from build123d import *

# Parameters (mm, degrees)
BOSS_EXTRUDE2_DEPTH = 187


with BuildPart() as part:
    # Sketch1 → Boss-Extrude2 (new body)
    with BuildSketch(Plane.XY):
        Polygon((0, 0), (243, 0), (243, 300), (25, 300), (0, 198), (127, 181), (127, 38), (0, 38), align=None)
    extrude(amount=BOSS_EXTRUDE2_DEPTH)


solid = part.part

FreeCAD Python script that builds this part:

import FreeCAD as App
import Part
import Sketcher

V = App.Vector
Q = App.Units.Quantity

doc = App.newDocument("Part")
body = doc.addObject("PartDesign::Body", "Body")

# Sketch on XY plane
sketch1 = body.newObject("Sketcher::SketchObject", "Sketch")
sketch1.AttachmentSupport = (doc.getObject("XY_Plane"), [""])
sketch1.MapMode = "FlatFace"
sketch1.addGeometry([
    Part.LineSegment(V(0, 0, 0), V(243, 0, 0)),  # 0
    Part.LineSegment(V(243, 0, 0), V(243, 300, 0)),  # 1
    Part.LineSegment(V(243, 300, 0), V(25, 300, 0)),  # 2
    Part.LineSegment(V(25, 300, 0), V(0, 198, 0)),  # 3
    Part.LineSegment(V(0, 198, 0), V(127, 181, 0)),  # 4
    Part.LineSegment(V(127, 181, 0), V(127, 38, 0)),  # 5
    Part.LineSegment(V(127, 38, 0), V(0, 38, 0)),  # 6
    Part.LineSegment(V(0, 38, 0), V(0, 0, 0)),  # 7
], False)
sketch1.addConstraint([
    Sketcher.Constraint("Coincident", 0, 2, 1, 1),
    Sketcher.Constraint("Coincident", 1, 2, 2, 1),
    Sketcher.Constraint("Coincident", 2, 2, 3, 1),
    Sketcher.Constraint("Coincident", 3, 2, 4, 1),
    Sketcher.Constraint("Coincident", 4, 2, 5, 1),
    Sketcher.Constraint("Coincident", 5, 2, 6, 1),
    Sketcher.Constraint("Coincident", 6, 2, 7, 1),
    Sketcher.Constraint("Coincident", 7, 2, 0, 1),
    Sketcher.Constraint("Horizontal", 0),
    Sketcher.Constraint("Vertical", 1),
    Sketcher.Constraint("Horizontal", 2),
    Sketcher.Constraint("Vertical", 5),
    Sketcher.Constraint("Horizontal", 6),
    Sketcher.Constraint("Vertical", 7),
    Sketcher.Constraint("Coincident", 7, 2, -1, 1),
    Sketcher.Constraint("PointOnObject", 3, 2, -2),
    Sketcher.Constraint("DistanceX", 0, 1, 0, 2, Q("243 mm")),
    Sketcher.Constraint("DistanceX", 2, 2, 2, 1, Q("218 mm")),
    Sketcher.Constraint("DistanceX", 6, 2, 6, 1, Q("127 mm")),
    Sketcher.Constraint("DistanceY", 1, 1, 1, 2, Q("300 mm")),
    Sketcher.Constraint("DistanceY", 5, 2, 5, 1, Q("143 mm")),
    Sketcher.Constraint("DistanceY", 7, 2, 7, 1, Q("38 mm")),
    Sketcher.Constraint("DistanceY", -1, 1, 3, 2, Q("198 mm")),
])
pad1 = body.newObject("PartDesign::Pad", "Pad")
pad1.Profile = sketch1
pad1.Length = 187

doc.recompute()
